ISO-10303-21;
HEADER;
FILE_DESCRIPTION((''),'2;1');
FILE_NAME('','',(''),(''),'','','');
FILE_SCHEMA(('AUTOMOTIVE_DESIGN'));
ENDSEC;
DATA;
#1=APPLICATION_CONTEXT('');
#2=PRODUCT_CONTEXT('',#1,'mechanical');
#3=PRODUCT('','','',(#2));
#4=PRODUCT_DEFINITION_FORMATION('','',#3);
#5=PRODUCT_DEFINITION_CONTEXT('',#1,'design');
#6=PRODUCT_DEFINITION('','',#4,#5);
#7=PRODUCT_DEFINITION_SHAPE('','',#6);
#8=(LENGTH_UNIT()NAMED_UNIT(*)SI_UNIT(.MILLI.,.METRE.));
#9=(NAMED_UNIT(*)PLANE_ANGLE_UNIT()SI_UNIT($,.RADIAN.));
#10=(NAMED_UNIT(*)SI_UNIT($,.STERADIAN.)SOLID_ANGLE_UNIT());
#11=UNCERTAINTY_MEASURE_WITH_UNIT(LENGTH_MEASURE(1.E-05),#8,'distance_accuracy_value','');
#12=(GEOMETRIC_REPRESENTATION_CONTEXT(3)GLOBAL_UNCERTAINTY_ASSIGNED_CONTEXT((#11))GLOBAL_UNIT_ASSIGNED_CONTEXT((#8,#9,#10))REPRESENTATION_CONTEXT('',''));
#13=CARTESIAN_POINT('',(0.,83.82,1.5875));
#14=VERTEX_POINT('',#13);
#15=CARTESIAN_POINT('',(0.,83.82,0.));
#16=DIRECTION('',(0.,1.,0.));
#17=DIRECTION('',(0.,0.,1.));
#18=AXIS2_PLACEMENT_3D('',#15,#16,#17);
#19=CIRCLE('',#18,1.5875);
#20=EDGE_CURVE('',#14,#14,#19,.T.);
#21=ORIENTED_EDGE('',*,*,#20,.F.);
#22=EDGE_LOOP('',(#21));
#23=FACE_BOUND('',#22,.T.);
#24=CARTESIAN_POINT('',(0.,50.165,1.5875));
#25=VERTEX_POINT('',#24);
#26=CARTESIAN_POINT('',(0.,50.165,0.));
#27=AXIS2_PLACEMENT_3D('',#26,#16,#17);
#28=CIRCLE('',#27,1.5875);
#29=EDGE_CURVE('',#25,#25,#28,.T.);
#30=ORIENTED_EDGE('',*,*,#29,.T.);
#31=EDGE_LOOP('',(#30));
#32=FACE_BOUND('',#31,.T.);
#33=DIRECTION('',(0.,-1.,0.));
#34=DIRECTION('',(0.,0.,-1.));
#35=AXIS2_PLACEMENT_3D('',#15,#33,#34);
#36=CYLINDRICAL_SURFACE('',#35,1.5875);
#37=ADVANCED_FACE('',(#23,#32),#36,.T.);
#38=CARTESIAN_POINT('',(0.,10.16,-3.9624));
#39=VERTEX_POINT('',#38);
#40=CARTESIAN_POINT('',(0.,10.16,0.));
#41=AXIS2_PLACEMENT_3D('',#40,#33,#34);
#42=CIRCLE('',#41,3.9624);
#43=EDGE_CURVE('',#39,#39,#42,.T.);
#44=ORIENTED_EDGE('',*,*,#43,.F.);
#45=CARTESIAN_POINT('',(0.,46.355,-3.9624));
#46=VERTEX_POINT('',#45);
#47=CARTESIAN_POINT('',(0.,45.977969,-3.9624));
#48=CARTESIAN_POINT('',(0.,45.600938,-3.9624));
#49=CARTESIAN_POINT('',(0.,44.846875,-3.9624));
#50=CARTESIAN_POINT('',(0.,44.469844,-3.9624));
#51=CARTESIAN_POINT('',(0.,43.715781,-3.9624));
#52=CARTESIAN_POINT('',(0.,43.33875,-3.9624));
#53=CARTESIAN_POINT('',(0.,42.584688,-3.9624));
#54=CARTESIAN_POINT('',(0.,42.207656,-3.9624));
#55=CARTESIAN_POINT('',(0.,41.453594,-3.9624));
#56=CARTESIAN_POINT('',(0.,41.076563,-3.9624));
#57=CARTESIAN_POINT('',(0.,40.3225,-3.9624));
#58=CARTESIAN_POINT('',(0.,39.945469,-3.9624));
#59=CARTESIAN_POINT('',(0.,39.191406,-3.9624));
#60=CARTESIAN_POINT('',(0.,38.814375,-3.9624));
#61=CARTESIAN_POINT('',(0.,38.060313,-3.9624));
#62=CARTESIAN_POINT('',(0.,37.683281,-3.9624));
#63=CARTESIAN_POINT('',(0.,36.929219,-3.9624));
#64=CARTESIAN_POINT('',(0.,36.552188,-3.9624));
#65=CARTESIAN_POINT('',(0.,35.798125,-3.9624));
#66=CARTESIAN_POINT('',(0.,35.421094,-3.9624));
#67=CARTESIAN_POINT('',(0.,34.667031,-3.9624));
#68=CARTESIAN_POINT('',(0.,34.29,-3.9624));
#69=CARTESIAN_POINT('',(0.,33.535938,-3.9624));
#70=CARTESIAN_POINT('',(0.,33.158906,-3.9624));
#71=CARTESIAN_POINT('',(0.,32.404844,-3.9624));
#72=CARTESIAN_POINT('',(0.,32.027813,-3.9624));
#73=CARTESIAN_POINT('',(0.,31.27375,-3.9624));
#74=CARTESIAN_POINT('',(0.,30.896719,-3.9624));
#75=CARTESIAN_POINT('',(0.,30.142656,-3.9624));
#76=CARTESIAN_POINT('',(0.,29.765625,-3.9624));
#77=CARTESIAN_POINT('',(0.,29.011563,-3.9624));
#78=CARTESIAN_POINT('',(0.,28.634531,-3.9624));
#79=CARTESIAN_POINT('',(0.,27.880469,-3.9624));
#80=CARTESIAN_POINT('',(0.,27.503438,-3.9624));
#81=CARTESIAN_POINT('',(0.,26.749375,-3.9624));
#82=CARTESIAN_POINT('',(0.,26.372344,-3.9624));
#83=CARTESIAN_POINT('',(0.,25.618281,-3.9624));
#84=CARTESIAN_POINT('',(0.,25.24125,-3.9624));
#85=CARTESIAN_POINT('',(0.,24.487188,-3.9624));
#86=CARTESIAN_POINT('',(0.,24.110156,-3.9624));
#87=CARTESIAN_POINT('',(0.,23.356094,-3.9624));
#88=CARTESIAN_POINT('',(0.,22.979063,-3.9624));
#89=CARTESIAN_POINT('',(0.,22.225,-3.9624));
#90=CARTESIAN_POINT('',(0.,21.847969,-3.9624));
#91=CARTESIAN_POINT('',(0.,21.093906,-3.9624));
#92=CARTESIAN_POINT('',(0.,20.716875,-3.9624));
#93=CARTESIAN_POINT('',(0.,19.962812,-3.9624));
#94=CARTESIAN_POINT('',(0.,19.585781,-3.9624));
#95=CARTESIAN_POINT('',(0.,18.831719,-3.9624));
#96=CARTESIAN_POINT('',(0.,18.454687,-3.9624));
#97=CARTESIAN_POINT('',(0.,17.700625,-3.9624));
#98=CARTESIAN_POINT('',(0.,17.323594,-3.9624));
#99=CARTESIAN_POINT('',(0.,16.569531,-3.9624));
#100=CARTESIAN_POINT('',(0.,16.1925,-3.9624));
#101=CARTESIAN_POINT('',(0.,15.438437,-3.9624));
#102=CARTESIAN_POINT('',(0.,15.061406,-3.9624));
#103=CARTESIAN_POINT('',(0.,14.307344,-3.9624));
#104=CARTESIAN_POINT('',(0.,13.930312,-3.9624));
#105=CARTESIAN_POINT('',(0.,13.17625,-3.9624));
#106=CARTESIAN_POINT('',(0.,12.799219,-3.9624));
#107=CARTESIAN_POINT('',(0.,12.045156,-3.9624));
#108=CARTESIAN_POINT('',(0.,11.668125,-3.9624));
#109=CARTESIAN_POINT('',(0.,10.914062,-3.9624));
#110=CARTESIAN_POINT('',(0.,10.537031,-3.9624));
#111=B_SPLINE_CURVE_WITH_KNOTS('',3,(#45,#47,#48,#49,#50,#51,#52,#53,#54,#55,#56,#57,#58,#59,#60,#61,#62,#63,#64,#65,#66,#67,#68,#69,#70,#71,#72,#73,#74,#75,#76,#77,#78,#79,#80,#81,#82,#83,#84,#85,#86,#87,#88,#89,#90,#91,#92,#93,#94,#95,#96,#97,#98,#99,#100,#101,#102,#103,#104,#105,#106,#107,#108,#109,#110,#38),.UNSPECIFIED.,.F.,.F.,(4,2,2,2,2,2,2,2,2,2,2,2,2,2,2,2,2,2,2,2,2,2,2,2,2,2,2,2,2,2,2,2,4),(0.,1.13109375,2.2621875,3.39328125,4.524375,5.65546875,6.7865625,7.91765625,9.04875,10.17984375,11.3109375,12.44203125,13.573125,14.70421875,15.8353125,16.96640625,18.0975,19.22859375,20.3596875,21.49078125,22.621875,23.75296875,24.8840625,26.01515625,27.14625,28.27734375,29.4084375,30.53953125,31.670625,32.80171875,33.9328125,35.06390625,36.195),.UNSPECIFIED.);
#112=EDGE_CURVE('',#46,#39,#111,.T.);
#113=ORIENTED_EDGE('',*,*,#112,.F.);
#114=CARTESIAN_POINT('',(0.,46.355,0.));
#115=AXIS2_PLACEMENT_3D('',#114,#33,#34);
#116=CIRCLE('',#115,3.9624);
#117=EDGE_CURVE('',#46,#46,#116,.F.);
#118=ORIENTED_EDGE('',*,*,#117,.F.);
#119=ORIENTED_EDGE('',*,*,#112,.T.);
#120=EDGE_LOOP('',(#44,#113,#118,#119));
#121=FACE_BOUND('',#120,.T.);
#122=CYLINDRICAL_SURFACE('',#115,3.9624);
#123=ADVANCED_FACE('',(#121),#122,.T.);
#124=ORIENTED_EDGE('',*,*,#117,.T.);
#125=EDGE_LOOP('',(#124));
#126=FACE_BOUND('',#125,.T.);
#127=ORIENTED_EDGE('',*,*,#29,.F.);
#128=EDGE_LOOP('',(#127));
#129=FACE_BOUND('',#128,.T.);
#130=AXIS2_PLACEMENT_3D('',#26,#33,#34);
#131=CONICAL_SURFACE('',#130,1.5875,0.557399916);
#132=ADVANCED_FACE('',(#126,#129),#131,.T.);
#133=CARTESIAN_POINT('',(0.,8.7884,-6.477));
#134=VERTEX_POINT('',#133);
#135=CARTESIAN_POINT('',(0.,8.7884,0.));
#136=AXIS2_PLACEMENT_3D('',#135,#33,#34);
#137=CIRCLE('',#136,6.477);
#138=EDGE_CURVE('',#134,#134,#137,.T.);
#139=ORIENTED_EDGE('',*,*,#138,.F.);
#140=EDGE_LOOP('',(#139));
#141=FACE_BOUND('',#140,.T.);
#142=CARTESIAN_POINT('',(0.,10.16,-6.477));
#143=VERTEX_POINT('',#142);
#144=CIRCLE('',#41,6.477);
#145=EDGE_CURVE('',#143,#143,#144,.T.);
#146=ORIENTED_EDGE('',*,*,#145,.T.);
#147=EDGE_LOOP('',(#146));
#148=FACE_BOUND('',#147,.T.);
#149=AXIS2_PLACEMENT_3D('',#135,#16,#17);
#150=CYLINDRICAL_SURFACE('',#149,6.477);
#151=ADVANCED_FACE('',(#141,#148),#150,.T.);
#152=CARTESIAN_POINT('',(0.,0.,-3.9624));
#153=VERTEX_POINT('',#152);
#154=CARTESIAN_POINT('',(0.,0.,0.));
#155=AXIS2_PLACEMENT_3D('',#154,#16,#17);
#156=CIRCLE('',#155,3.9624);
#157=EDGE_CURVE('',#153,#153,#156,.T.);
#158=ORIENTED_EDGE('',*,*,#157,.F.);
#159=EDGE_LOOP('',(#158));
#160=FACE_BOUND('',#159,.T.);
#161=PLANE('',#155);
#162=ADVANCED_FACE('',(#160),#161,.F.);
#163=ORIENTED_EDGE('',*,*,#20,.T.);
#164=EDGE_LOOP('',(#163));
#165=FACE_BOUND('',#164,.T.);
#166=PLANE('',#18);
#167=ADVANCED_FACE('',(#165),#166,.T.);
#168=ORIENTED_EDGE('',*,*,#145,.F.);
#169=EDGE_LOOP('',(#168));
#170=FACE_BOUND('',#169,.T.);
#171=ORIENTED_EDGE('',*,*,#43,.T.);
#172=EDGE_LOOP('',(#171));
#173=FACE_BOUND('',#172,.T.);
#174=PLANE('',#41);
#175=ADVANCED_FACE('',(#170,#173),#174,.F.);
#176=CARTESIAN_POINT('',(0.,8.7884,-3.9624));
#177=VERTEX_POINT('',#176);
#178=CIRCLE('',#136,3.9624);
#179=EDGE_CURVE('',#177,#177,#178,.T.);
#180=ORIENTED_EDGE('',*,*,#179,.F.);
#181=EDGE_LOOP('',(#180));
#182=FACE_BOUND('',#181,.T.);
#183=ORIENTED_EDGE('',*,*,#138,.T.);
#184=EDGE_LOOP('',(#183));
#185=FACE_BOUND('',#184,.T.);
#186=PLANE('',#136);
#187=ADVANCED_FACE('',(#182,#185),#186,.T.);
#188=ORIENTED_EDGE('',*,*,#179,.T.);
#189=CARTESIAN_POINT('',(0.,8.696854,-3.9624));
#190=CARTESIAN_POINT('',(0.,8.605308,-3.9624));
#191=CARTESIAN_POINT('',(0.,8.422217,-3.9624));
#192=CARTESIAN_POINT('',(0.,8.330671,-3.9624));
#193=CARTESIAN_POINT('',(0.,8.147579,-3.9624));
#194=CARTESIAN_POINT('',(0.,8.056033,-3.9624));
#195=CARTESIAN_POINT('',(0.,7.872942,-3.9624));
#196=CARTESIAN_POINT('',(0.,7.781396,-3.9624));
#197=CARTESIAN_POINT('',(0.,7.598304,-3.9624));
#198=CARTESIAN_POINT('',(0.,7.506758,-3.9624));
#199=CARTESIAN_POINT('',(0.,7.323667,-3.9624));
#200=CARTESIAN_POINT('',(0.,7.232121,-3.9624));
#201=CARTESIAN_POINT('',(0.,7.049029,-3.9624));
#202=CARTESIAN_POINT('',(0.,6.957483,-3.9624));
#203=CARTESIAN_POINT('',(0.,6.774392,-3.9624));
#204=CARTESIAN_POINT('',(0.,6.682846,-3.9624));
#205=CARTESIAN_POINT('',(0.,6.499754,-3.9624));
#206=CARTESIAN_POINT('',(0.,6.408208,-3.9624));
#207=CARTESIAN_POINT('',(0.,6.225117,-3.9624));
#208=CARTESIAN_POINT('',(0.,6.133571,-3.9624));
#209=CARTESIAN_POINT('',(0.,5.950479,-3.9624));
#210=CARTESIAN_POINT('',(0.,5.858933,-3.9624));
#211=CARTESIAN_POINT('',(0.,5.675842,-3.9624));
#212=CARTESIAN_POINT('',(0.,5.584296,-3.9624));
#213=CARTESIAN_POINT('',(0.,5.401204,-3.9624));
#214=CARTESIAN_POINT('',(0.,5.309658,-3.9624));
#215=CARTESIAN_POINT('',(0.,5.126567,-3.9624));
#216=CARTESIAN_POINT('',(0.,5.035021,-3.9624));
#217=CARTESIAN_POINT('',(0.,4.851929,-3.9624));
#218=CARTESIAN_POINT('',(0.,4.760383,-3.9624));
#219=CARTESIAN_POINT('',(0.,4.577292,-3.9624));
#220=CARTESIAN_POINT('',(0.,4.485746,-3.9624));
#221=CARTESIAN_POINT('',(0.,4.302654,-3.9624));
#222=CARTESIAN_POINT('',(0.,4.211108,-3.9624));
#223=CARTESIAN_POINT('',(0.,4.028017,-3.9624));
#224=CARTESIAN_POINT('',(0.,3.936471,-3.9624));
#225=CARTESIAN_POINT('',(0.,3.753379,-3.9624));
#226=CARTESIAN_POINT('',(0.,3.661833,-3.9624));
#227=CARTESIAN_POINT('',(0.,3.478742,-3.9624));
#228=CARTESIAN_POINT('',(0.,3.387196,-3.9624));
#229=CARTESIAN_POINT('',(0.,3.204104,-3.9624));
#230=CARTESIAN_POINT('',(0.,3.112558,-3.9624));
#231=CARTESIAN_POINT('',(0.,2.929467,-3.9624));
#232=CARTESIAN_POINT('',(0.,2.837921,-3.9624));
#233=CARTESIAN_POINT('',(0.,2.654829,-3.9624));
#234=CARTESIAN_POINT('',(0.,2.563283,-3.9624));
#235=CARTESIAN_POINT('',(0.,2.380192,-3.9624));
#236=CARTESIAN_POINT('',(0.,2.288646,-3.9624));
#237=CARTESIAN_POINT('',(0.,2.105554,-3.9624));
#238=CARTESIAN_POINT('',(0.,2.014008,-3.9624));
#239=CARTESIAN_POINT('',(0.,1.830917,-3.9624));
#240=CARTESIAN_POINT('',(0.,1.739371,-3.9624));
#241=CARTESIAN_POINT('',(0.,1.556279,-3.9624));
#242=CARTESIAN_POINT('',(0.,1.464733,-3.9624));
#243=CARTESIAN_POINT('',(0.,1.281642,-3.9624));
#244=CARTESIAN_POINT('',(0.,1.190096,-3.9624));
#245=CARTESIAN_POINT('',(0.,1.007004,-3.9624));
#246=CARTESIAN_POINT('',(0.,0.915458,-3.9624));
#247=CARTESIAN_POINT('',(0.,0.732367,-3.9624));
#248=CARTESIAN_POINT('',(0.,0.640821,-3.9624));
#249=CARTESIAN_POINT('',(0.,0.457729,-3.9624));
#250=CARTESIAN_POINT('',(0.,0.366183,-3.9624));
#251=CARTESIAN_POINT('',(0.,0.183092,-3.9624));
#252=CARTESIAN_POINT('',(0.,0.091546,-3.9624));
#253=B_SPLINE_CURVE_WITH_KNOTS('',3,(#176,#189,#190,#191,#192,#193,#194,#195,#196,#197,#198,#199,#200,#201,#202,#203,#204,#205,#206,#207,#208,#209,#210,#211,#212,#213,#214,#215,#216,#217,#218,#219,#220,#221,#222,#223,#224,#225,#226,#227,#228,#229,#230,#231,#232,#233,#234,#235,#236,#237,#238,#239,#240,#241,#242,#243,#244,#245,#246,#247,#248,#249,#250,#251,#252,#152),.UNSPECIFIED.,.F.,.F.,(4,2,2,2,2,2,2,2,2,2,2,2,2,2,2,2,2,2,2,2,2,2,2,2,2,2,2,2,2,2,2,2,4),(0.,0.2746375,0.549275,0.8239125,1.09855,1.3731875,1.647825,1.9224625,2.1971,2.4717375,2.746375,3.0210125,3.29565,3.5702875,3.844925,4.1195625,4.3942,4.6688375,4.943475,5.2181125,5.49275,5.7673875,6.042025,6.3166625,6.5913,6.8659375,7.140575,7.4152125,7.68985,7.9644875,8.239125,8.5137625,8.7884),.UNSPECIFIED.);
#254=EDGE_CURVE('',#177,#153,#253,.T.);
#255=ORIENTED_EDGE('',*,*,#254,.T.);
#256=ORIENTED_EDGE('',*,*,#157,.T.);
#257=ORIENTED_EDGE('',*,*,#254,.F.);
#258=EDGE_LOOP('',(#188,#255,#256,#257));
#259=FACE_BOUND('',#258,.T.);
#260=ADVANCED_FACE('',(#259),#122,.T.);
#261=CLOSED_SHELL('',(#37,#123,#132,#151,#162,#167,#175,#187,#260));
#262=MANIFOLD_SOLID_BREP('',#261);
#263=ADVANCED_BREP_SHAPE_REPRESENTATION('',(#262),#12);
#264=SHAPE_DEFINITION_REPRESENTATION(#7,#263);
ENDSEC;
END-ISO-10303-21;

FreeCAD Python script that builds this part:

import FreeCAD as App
import Part
import Sketcher
from FreeCAD import Vector
Q = App.Units.Quantity

doc = App.newDocument("Part")
body = doc.addObject("PartDesign::Body", "Body")

# Sketch on XZ plane
sketch1 = doc.addObject("Sketcher::SketchObject", "Sketch")
body.addObject(sketch1)
sketch1.AttachmentSupport = (doc.XZ_Plane, [""])
sketch1.MapMode = "FlatFace"
sketch1.addGeometry(Part.Circle(Vector(0, 0, 0), Vector(0, 0, 1), 3.9624), False)
sketch1.addConstraint([
    Sketcher.Constraint("Coincident", 0, 3, -1, 1),
    Sketcher.Constraint("Diameter", 0, Q("0.312 in")),
])
pad1 = doc.addObject("PartDesign::Pad", "Pad")
body.addObject(pad1)
pad1.Profile = sketch1
pad1.Length = Q("1.825 in")
pad1.Reversed = True

# Sketch on XZ plane
sketch2 = doc.addObject("Sketcher::SketchObject", "Sketch001")
body.addObject(sketch2)
sketch2.AttachmentSupport = (doc.XZ_Plane, [""])
sketch2.MapMode = "FlatFace"
sketch2.AttachmentOffset = App.Placement(Vector(0, 0, -1.825 * 25.4), App.Rotation())
sketch2.addGeometry(Part.Circle(Vector(0, 0, 0), Vector(0, 0, 1), 3.9624), False)
sketch2.addConstraint([
    Sketcher.Constraint("Coincident", 0, 3, -1, 1),
    Sketcher.Constraint("Diameter", 0, Q("0.312 in")),
])

# Sketch on XZ plane
sketch3 = doc.addObject("Sketcher::SketchObject", "Sketch002")
body.addObject(sketch3)
sketch3.AttachmentSupport = (doc.XZ_Plane, [""])
sketch3.MapMode = "FlatFace"
sketch3.AttachmentOffset = App.Placement(Vector(0, 0, -1.975 * 25.4), App.Rotation())
sketch3.addGeometry(Part.Circle(Vector(0, 0, 0), Vector(0, 0, 1), 1.5875), False)
sketch3.addConstraint([
    Sketcher.Constraint("Coincident", 0, 3, -1, 1),
    Sketcher.Constraint("Diameter", 0, Q("0.125 in")),
])

additiveloft = doc.addObject("PartDesign::AdditiveLoft", "AdditiveLoft")
body.addObject(additiveloft)
additiveloft.Profile = sketch2
additiveloft.Sections = [sketch3]

# Sketch on XZ plane
sketch4 = doc.addObject("Sketcher::SketchObject", "Sketch003")
body.addObject(sketch4)
sketch4.AttachmentSupport = (doc.XZ_Plane, [""])
sketch4.MapMode = "FlatFace"
sketch4.AttachmentOffset = App.Placement(Vector(0, 0, -1.975 * 25.4), App.Rotation())
sketch4.addGeometry(Part.Circle(Vector(0, 0, 0), Vector(0, 0, 1), 1.5875), False)
sketch4.addConstraint([
    Sketcher.Constraint("Coincident", 0, 3, -1, 1),
    Sketcher.Constraint("Diameter", 0, Q("0.125 in")),
])
pad2 = doc.addObject("PartDesign::Pad", "Pad001")
body.addObject(pad2)
pad2.Profile = sketch4
pad2.Length = Q("1.325 in")
pad2.Reversed = True

# Sketch on XZ plane
sketch5 = doc.addObject("Sketcher::SketchObject", "Sketch004")
body.addObject(sketch5)
sketch5.AttachmentSupport = (doc.XZ_Plane, [""])
sketch5.MapMode = "FlatFace"
sketch5.AttachmentOffset = App.Placement(Vector(0, 0, -0.4 * 25.4), App.Rotation())
sketch5.addGeometry(Part.Circle(Vector(0, 0, 0), Vector(0, 0, 1), 6.477), False)
sketch5.addConstraint([
    Sketcher.Constraint("Coincident", 0, 3, -1, 1),
    Sketcher.Constraint("Diameter", 0, Q("0.51 in")),
])
pad3 = doc.addObject("PartDesign::Pad", "Pad002")
body.addObject(pad3)
pad3.Profile = sketch5
pad3.Length = Q("0.054 in")

doc.recompute()
